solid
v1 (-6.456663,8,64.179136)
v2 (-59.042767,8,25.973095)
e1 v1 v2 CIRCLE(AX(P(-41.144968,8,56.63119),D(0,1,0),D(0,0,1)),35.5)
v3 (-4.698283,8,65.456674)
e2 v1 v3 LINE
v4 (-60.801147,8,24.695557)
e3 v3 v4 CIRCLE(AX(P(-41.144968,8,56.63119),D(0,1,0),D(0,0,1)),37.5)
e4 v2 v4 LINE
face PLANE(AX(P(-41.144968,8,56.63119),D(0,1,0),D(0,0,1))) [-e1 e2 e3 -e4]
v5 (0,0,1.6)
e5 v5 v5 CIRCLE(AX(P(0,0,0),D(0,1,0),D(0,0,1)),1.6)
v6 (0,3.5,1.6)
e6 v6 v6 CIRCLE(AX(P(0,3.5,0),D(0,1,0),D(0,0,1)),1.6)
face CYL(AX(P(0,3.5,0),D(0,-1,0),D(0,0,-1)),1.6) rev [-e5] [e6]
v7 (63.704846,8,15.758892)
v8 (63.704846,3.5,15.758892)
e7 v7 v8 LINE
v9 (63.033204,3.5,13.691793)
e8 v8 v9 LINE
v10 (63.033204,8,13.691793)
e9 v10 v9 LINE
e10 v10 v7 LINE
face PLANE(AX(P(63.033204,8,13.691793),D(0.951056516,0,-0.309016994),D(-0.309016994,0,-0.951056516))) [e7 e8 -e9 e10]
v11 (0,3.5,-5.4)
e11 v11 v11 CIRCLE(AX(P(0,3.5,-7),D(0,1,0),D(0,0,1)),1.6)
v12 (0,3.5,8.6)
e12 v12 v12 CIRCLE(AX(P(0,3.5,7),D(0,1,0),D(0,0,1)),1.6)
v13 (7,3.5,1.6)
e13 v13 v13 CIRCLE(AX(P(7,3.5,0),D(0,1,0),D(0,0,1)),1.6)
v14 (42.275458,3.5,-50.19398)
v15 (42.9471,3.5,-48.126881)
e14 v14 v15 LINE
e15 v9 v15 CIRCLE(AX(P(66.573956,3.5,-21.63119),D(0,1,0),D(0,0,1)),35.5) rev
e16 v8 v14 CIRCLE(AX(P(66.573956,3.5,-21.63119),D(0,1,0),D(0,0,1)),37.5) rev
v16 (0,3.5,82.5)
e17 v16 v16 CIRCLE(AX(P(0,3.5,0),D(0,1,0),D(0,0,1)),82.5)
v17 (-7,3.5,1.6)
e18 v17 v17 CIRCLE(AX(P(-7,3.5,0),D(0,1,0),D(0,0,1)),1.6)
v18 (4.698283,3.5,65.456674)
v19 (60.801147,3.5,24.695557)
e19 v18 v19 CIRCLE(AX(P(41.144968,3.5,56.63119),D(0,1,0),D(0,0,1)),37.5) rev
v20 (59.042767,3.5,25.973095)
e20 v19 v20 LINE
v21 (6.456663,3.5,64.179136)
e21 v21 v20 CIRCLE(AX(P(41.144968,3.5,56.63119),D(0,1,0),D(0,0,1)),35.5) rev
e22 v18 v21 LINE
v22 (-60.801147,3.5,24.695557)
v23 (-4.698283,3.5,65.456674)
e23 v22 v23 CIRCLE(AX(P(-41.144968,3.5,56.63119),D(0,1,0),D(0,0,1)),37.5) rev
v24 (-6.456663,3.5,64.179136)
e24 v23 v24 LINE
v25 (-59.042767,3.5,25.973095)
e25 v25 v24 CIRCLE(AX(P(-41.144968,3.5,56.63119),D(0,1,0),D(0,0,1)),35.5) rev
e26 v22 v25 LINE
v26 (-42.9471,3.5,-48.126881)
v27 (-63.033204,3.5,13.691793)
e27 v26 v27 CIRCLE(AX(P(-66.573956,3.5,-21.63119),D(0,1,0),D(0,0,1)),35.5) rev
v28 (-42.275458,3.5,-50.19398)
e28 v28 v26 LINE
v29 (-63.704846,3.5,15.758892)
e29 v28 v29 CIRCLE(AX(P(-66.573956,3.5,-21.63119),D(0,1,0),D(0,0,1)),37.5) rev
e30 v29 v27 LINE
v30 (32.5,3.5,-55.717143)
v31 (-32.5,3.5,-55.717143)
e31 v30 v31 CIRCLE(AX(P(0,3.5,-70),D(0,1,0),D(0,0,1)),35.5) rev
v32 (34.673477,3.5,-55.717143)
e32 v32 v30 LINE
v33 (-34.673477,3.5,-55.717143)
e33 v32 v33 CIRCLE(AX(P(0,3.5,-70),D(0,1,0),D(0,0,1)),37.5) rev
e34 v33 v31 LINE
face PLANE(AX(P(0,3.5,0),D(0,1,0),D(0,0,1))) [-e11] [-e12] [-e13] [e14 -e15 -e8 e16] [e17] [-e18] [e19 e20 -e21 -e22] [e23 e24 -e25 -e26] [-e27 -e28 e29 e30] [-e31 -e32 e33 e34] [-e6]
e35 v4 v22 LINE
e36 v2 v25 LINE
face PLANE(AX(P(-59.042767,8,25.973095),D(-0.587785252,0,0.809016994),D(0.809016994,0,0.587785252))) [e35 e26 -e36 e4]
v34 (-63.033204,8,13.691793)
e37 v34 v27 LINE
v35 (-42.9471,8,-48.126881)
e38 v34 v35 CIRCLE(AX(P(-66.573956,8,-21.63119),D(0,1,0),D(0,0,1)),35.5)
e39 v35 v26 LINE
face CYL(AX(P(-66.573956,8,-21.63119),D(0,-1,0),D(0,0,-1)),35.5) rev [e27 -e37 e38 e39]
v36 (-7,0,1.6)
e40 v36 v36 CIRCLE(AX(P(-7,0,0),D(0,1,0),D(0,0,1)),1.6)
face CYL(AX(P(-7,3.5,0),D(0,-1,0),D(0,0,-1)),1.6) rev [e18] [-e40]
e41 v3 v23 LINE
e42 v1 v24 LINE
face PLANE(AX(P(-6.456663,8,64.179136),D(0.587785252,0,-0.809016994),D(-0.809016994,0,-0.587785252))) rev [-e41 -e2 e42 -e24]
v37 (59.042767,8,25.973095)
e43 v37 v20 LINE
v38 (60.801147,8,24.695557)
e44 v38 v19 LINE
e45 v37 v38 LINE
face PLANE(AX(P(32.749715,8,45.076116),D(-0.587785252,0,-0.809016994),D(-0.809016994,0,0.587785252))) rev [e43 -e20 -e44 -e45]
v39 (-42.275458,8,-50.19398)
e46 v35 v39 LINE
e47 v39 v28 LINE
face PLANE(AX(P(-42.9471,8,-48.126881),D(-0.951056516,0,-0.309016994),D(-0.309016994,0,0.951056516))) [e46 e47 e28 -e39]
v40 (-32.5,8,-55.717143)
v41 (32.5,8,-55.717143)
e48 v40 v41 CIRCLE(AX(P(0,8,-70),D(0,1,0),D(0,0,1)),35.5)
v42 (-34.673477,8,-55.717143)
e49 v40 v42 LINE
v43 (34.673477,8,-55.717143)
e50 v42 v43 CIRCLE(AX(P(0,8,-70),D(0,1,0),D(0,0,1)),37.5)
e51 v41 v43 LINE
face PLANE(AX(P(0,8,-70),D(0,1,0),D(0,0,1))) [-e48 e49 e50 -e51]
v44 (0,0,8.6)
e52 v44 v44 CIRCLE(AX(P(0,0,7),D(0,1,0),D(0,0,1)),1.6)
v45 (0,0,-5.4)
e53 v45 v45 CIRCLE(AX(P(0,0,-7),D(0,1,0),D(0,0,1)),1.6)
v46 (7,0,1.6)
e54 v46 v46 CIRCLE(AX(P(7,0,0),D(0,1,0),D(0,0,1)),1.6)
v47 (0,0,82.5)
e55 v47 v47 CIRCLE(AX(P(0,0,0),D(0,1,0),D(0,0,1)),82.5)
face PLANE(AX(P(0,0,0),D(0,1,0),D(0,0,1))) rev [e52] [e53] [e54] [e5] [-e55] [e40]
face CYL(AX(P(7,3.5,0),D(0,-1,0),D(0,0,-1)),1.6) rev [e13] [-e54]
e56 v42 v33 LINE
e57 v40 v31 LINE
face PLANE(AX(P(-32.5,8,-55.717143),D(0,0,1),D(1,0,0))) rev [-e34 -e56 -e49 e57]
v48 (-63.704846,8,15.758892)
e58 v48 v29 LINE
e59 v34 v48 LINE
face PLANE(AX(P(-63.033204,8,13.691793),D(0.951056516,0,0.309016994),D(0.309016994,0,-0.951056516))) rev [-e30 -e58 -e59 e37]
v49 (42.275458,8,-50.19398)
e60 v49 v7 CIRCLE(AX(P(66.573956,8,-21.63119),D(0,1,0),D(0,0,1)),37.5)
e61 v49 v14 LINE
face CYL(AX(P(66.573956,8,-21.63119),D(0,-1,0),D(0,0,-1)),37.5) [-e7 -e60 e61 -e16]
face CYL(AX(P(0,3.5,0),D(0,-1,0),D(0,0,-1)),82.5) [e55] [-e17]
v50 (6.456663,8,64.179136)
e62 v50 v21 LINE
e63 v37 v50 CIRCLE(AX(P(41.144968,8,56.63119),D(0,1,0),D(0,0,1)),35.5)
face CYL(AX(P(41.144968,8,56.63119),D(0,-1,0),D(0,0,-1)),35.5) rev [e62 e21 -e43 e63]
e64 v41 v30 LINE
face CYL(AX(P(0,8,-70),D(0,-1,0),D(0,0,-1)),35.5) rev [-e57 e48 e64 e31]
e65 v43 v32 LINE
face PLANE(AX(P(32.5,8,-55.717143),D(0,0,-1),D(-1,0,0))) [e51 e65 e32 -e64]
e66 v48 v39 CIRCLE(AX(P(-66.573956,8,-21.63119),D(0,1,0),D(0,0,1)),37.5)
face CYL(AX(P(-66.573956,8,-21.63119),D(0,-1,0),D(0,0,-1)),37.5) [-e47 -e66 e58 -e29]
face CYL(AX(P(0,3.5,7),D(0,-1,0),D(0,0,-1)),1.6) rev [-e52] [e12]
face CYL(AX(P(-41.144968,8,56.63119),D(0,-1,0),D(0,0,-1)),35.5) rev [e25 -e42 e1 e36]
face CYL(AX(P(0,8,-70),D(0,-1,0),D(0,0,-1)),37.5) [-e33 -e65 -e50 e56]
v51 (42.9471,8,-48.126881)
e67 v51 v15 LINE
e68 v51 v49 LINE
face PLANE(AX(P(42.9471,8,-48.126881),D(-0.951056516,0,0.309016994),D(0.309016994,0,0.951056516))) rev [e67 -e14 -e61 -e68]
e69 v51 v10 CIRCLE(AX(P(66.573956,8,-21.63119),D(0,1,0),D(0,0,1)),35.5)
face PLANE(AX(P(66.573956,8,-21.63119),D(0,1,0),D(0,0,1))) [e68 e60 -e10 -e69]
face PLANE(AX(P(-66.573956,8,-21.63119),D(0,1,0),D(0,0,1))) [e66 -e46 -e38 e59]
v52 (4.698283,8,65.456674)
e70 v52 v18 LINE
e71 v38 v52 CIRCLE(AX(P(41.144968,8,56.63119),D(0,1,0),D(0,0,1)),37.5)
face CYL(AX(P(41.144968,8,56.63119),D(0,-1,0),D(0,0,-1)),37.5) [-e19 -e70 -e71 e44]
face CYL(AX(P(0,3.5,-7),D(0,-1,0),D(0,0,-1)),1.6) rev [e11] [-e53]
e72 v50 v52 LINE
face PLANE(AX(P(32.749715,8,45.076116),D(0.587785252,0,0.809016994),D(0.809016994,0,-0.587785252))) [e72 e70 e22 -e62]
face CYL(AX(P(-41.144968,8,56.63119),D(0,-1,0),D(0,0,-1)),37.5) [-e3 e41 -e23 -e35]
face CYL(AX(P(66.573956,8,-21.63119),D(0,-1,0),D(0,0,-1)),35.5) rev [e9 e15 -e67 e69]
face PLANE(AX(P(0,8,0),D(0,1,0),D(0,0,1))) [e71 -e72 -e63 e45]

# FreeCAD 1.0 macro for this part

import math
import FreeCAD as App
import Part
import Sketcher
Q = App.Units.Quantity

doc = App.newDocument("Part")
body = doc.addObject("PartDesign::Body", "Body")

# Sketch on XZ plane
sketch1 = body.newObject("Sketcher::SketchObject", "Sketch")
sketch1.AttachmentSupport = (doc.getObject("XZ_Plane"), [""])
sketch1.MapMode = "FlatFace"
sketch1.addGeometry([
    Part.Circle(App.Vector(0, 0, 0), App.Vector(0, 0, 1), 82.5),  # 0
    Part.Circle(App.Vector(0, 7, 0), App.Vector(0, 0, 1), 1.6),  # 1
    Part.Circle(App.Vector(-7, 0, 0), App.Vector(0, 0, 1), 1.6),  # 2
    Part.Circle(App.Vector(0, 0, 0), App.Vector(0, 0, 1), 1.6),  # 3
    Part.Circle(App.Vector(0, -7, 0), App.Vector(0, 0, 1), 1.6),  # 4
    Part.Circle(App.Vector(7, 0, 0), App.Vector(0, 0, 1), 1.6),  # 5
], False)
sketch1.addConstraint([
    Sketcher.Constraint("Coincident", 0, 3, -1, 1),
    Sketcher.Constraint("Coincident", 3, 3, -1, 1),
    Sketcher.Constraint("Equal", 1, 2),
    Sketcher.Constraint("Equal", 2, 3),
    Sketcher.Constraint("Equal", 3, 4),
    Sketcher.Constraint("Equal", 4, 5),
    Sketcher.Constraint("Symmetric", 1, 3, 4, 3, -1, 1),
    Sketcher.Constraint("Symmetric", 2, 3, 5, 3, -1, 1),
    Sketcher.Constraint("PointOnObject", 1, 3, -2),
    Sketcher.Constraint("PointOnObject", 2, 3, -1),
    Sketcher.Constraint("Diameter", 0, 165.0),
    Sketcher.Constraint("Diameter", 1, 3.2),
    Sketcher.Constraint("DistanceY", -1, 1, 1, 3, 7.0),
    Sketcher.Constraint("DistanceX", 2, 3, -1, 1, 7.0),
])
pad1 = body.newObject("PartDesign::Pad", "Pad")
pad1.Profile = sketch1
pad1.Length = 3.5
pad1.Reversed = True

# Sketch on XZ plane
sketch2 = body.newObject("Sketcher::SketchObject", "Sketch001")
sketch2.AttachmentSupport = (doc.getObject("XZ_Plane"), [""])
sketch2.MapMode = "FlatFace"
sketch2.addGeometry([
    Part.ArcOfCircle(Part.Circle(App.Vector(41.144968, 56.63119, 0), App.Vector(0, 0, 1), 35.5), math.radians(167.724169), math.radians(300.275831)),  # 0
    Part.LineSegment(App.Vector(59.042767, 25.973095, 0), App.Vector(60.801147, 24.695557, 0)),  # 1
    Part.ArcOfCircle(Part.Circle(App.Vector(41.144968, 56.63119, 0), App.Vector(0, 0, 1), 37.5), math.radians(166.387966), math.radians(301.612034)),  # 2
    Part.LineSegment(App.Vector(4.698283, 65.456674, 0), App.Vector(6.456663, 64.179136, 0)),  # 3
    Part.ArcOfCircle(Part.Circle(App.Vector(-66.573956, -21.63119, 0), App.Vector(0, 0, 1), 35.5), math.radians(-48.275831), math.radians(84.275831)),  # 4
    Part.LineSegment(App.Vector(-63.033204, 13.691793, 0), App.Vector(-63.704846, 15.758892, 0)),  # 5
    Part.ArcOfCircle(Part.Circle(App.Vector(-66.573956, -21.63119, 0), App.Vector(0, 0, 1), 37.5), math.radians(-49.612034), math.radians(85.612034)),  # 6
    Part.LineSegment(App.Vector(-42.275458, -50.19398, 0), App.Vector(-42.9471, -48.126881, 0)),  # 7
    Part.ArcOfCircle(Part.Circle(App.Vector(-41.144968, 56.63119, 0), App.Vector(0, 0, 1), 35.5), math.radians(-120.275831), math.radians(12.275831)),  # 8
    Part.LineSegment(App.Vector(-6.456663, 64.179136, 0), App.Vector(-4.698283, 65.456674, 0)),  # 9
    Part.ArcOfCircle(Part.Circle(App.Vector(-41.144968, 56.63119, 0), App.Vector(0, 0, 1), 37.5), math.radians(-121.612034), math.radians(13.612034)),  # 10
    Part.LineSegment(App.Vector(-60.801147, 24.695557, 0), App.Vector(-59.042767, 25.973095, 0)),  # 11
    Part.ArcOfCircle(Part.Circle(App.Vector(66.573956, -21.63119, 0), App.Vector(0, 0, 1), 35.5), math.radians(95.724169), math.radians(228.275831)),  # 12
    Part.LineSegment(App.Vector(42.9471, -48.126881, 0), App.Vector(42.275458, -50.19398, 0)),  # 13
    Part.ArcOfCircle(Part.Circle(App.Vector(66.573956, -21.63119, 0), App.Vector(0, 0, 1), 37.5), math.radians(94.387966), math.radians(229.612034)),  # 14
    Part.LineSegment(App.Vector(63.704846, 15.758892, 0), App.Vector(63.033204, 13.691793, 0)),  # 15
    Part.ArcOfCircle(Part.Circle(App.Vector(0, -70, 0), App.Vector(0, 0, 1), 35.5), math.radians(23.724169), math.radians(156.275831)),  # 16
    Part.LineSegment(App.Vector(-32.5, -55.717143, 0), App.Vector(-34.673477, -55.717143, 0)),  # 17
    Part.ArcOfCircle(Part.Circle(App.Vector(0, -70, 0), App.Vector(0, 0, 1), 37.5), math.radians(22.387966), math.radians(157.612034)),  # 18
    Part.LineSegment(App.Vector(34.673477, -55.717143, 0), App.Vector(32.5, -55.717143, 0)),  # 19
], False)
sketch2.addConstraint([
    Sketcher.Constraint("Coincident", 0, 2, 1, 1),
    Sketcher.Constraint("Coincident", 1, 2, 2, 2),
    Sketcher.Constraint("Coincident", 2, 1, 3, 1),
    Sketcher.Constraint("Coincident", 3, 2, 0, 1),
    Sketcher.Constraint("Coincident", 4, 2, 5, 1),
    Sketcher.Constraint("Coincident", 5, 2, 6, 2),
    Sketcher.Constraint("Coincident", 6, 1, 7, 1),
    Sketcher.Constraint("Coincident", 7, 2, 4, 1),
    Sketcher.Constraint("Coincident", 8, 2, 9, 1),
    Sketcher.Constraint("Coincident", 9, 2, 10, 2),
    Sketcher.Constraint("Coincident", 10, 1, 11, 1),
    Sketcher.Constraint("Coincident", 11, 2, 8, 1),
    Sketcher.Constraint("Coincident", 12, 2, 13, 1),
    Sketcher.Constraint("Coincident", 13, 2, 14, 2),
    Sketcher.Constraint("Coincident", 14, 1, 15, 1),
    Sketcher.Constraint("Coincident", 15, 2, 12, 1),
    Sketcher.Constraint("Coincident", 16, 2, 17, 1),
    Sketcher.Constraint("Coincident", 17, 2, 18, 2),
    Sketcher.Constraint("Coincident", 18, 1, 19, 1),
    Sketcher.Constraint("Coincident", 19, 2, 16, 1),
    Sketcher.Constraint("Horizontal", 17),
    Sketcher.Constraint("Horizontal", 19),
    Sketcher.Constraint("Coincident", 2, 3, 0, 3),
    Sketcher.Constraint("Coincident", 6, 3, 4, 3),
    Sketcher.Constraint("Coincident", 10, 3, 8, 3),
    Sketcher.Constraint("Coincident", 14, 3, 12, 3),
    Sketcher.Constraint("Coincident", 18, 3, 16, 3),
    Sketcher.Constraint("Equal", 0, 4),
    Sketcher.Constraint("Equal", 2, 6),
    Sketcher.Constraint("Equal", 4, 8),
    Sketcher.Constraint("Equal", 6, 10),
    Sketcher.Constraint("Equal", 8, 12),
    Sketcher.Constraint("Equal", 10, 14),
    Sketcher.Constraint("Equal", 12, 16),
    Sketcher.Constraint("Equal", 14, 18),
    Sketcher.Constraint("Symmetric", 0, 3, 8, 3, -2),
    Sketcher.Constraint("Symmetric", 4, 3, 12, 3, -2),
    Sketcher.Constraint("Symmetric", 17, 2, 18, 1, -2),
    Sketcher.Constraint("Parallel", 1, 3),
    Sketcher.Constraint("Parallel", 5, 7),
    Sketcher.Constraint("Parallel", 9, 11),
    Sketcher.Constraint("Parallel", 13, 15),
    Sketcher.Constraint("Horizontal", 3, 2, 8, 2),
    Sketcher.Constraint("Horizontal", 2, 1, 9, 2),
    Sketcher.Constraint("Horizontal", 1, 2, 10, 1),
    Sketcher.Constraint("Horizontal", 7, 2, 12, 2),
    Sketcher.Constraint("Horizontal", 6, 1, 13, 2),
    Sketcher.Constraint("Horizontal", 5, 2, 14, 1),
    Sketcher.Constraint("Equal", 1, 3),
    Sketcher.Constraint("Equal", 3, 5),
    Sketcher.Constraint("Equal", 5, 7),
    Sketcher.Constraint("Radius", 0, 35.5),
    Sketcher.Constraint("Radius", 2, 37.5),
    Sketcher.Constraint("Angle", 1, Q("-36 deg")),
    Sketcher.Constraint("Angle", 5, Q("108 deg")),
    Sketcher.Constraint("DistanceY", 16, 3, -1, 1, 70.0),
    Sketcher.Constraint("DistanceX", 16, 2, -1, 1, 32.5),
    Sketcher.Constraint("DistanceX", 7, 2, -1, 1, 42.9471),
    Sketcher.Constraint("DistanceX", 2, 3, 0, 2, 17.8978),
    Sketcher.Constraint("DistanceX", 5, 2, 10, 1, 2.903699),
    Sketcher.Constraint("DistanceY", -1, 1, 0, 3, 56.63119),
    Sketcher.Constraint("DistanceY", 4, 3, -1, 1, 21.63119),
])
pad2 = body.newObject("PartDesign::Pad", "Pad001")
pad2.Profile = sketch2
pad2.Length = 8
pad2.Reversed = True

doc.recompute()
